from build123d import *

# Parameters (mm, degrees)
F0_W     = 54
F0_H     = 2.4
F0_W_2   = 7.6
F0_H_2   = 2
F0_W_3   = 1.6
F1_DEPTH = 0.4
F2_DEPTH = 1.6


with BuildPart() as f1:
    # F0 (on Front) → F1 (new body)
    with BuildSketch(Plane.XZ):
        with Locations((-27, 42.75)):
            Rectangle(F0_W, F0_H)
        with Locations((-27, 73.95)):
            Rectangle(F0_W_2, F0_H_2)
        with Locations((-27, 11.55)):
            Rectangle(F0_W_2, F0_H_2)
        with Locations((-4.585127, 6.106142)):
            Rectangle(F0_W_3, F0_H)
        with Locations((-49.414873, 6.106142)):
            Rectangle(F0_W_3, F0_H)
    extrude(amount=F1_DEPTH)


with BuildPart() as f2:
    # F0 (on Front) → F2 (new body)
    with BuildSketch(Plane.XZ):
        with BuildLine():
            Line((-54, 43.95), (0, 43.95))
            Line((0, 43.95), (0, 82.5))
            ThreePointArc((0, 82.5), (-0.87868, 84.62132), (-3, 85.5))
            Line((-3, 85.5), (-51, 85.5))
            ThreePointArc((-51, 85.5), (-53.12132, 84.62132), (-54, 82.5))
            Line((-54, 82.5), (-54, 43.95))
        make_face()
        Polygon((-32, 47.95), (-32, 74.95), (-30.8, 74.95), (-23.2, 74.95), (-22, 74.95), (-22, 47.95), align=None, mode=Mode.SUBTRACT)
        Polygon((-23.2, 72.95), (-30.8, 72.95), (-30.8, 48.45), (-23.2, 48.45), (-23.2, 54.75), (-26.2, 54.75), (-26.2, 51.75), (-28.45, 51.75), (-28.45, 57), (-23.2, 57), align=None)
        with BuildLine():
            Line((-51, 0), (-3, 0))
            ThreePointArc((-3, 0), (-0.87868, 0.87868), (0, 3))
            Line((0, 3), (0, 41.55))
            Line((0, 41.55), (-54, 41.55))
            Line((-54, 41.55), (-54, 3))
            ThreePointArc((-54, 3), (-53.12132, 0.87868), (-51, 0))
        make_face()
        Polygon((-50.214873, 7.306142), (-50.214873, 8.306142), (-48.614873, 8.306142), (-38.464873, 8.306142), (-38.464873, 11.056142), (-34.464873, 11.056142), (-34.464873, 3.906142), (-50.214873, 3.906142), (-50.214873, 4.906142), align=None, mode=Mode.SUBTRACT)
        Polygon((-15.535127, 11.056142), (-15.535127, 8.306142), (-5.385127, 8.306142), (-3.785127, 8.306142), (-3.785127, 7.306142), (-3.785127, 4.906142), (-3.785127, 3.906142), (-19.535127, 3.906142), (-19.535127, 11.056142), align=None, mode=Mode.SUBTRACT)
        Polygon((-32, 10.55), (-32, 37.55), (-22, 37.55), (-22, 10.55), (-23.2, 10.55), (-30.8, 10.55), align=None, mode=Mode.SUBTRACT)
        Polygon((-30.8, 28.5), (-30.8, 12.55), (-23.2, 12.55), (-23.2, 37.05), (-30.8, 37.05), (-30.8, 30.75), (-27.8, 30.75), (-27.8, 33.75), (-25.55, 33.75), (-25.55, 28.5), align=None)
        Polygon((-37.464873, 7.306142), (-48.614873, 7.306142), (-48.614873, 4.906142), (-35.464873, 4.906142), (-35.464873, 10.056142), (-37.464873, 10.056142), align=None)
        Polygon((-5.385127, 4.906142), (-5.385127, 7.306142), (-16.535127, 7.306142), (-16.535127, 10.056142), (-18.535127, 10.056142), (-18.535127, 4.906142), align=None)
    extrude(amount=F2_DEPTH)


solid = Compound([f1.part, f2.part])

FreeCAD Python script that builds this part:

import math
import FreeCAD as App
import Part
import Sketcher
from FreeCAD import Vector

doc = App.newDocument("Part")
body = doc.addObject("PartDesign::Body", "Body")
body.AllowCompound = True

# Sketch on XZ plane
sketch1 = body.newObject("Sketcher::SketchObject", "Sketch")
sketch1.AttachmentSupport = (doc.getObject("XZ_Plane"), [""])
sketch1.MapMode = "FlatFace"
sketch1.addGeometry([
    Part.LineSegment(Vector(-54, 43.95, 0), Vector(-54, 41.55, 0)),  # 0
    Part.LineSegment(Vector(-54, 41.55, 0), Vector(0, 41.55, 0)),  # 1
    Part.LineSegment(Vector(0, 41.55, 0), Vector(0, 43.95, 0)),  # 2
    Part.LineSegment(Vector(0, 43.95, 0), Vector(-54, 43.95, 0)),  # 3
    Part.LineSegment(Vector(-30.8, 74.95, 0), Vector(-30.8, 72.95, 0)),  # 4
    Part.LineSegment(Vector(-30.8, 72.95, 0), Vector(-23.2, 72.95, 0)),  # 5
    Part.LineSegment(Vector(-23.2, 72.95, 0), Vector(-23.2, 74.95, 0)),  # 6
    Part.LineSegment(Vector(-23.2, 74.95, 0), Vector(-30.8, 74.95, 0)),  # 7
    Part.LineSegment(Vector(-30.8, 12.55, 0), Vector(-30.8, 10.55, 0)),  # 8
    Part.LineSegment(Vector(-30.8, 10.55, 0), Vector(-23.2, 10.55, 0)),  # 9
    Part.LineSegment(Vector(-23.2, 10.55, 0), Vector(-23.2, 12.55, 0)),  # 10
    Part.LineSegment(Vector(-23.2, 12.55, 0), Vector(-30.8, 12.55, 0)),  # 11
    Part.LineSegment(Vector(-5.385127, 7.306142, 0), Vector(-5.385127, 4.906142, 0)),  # 12
    Part.LineSegment(Vector(-5.385127, 4.906142, 0), Vector(-3.785127, 4.906142, 0)),  # 13
    Part.LineSegment(Vector(-3.785127, 4.906142, 0), Vector(-3.785127, 7.306142, 0)),  # 14
    Part.LineSegment(Vector(-3.785127, 7.306142, 0), Vector(-5.385127, 7.306142, 0)),  # 15
    Part.LineSegment(Vector(-50.214873, 7.306142, 0), Vector(-50.214873, 4.906142, 0)),  # 16
    Part.LineSegment(Vector(-50.214873, 4.906142, 0), Vector(-48.614873, 4.906142, 0)),  # 17
    Part.LineSegment(Vector(-48.614873, 4.906142, 0), Vector(-48.614873, 7.306142, 0)),  # 18
    Part.LineSegment(Vector(-48.614873, 7.306142, 0), Vector(-50.214873, 7.306142, 0)),  # 19
], False)
sketch1.addConstraint([
    Sketcher.Constraint("Coincident", 0, 2, 1, 1),
    Sketcher.Constraint("Coincident", 1, 2, 2, 1),
    Sketcher.Constraint("Coincident", 2, 2, 3, 1),
    Sketcher.Constraint("Coincident", 3, 2, 0, 1),
    Sketcher.Constraint("Coincident", 4, 2, 5, 1),
    Sketcher.Constraint("Coincident", 5, 2, 6, 1),
    Sketcher.Constraint("Coincident", 6, 2, 7, 1),
    Sketcher.Constraint("Coincident", 7, 2, 4, 1),
    Sketcher.Constraint("Coincident", 8, 2, 9, 1),
    Sketcher.Constraint("Coincident", 9, 2, 10, 1),
    Sketcher.Constraint("Coincident", 10, 2, 11, 1),
    Sketcher.Constraint("Coincident", 11, 2, 8, 1),
    Sketcher.Constraint("Coincident", 12, 2, 13, 1),
    Sketcher.Constraint("Coincident", 13, 2, 14, 1),
    Sketcher.Constraint("Coincident", 14, 2, 15, 1),
    Sketcher.Constraint("Coincident", 15, 2, 12, 1),
    Sketcher.Constraint("Coincident", 16, 2, 17, 1),
    Sketcher.Constraint("Coincident", 17, 2, 18, 1),
    Sketcher.Constraint("Coincident", 18, 2, 19, 1),
    Sketcher.Constraint("Coincident", 19, 2, 16, 1),
    Sketcher.Constraint("Vertical", 0),
    Sketcher.Constraint("Horizontal", 1),
    Sketcher.Constraint("Vertical", 2),
    Sketcher.Constraint("Horizontal", 3),
    Sketcher.Constraint("Vertical", 4),
    Sketcher.Constraint("Horizontal", 5),
    Sketcher.Constraint("Vertical", 6),
    Sketcher.Constraint("Horizontal", 7),
    Sketcher.Constraint("Vertical", 8),
    Sketcher.Constraint("Horizontal", 9),
    Sketcher.Constraint("Vertical", 10),
    Sketcher.Constraint("Horizontal", 11),
    Sketcher.Constraint("Vertical", 12),
    Sketcher.Constraint("Horizontal", 13),
    Sketcher.Constraint("Vertical", 14),
    Sketcher.Constraint("Horizontal", 15),
    Sketcher.Constraint("Vertical", 16),
    Sketcher.Constraint("Horizontal", 17),
    Sketcher.Constraint("Vertical", 18),
    Sketcher.Constraint("Horizontal", 19),
    Sketcher.Constraint("PointOnObject", 1, 2, -2),
    Sketcher.Constraint("Horizontal", 13, 2, 16, 2),
    Sketcher.Constraint("Horizontal", 15, 2, 18, 2),
    Sketcher.Constraint("Vertical", 7, 2, 8, 2),
    Sketcher.Constraint("Vertical", 6, 2, 9, 2),
    Sketcher.Constraint("Equal", 15, 17),
    Sketcher.Constraint("Equal", 6, 8),
    Sketcher.Constraint("Equal", 2, 12),
    Sketcher.Constraint("DistanceX", 1, 1, 1, 2, 54.0),
    Sketcher.Constraint("DistanceY", 4, 2, 4, 1, 2.0),
    Sketcher.Constraint("DistanceX", 5, 1, 5, 2, 7.6),
    Sketcher.Constraint("DistanceX", 13, 1, 13, 2, 1.6),
    Sketcher.Constraint("DistanceY", 0, 2, 0, 1, 2.4),
    Sketcher.Constraint("DistanceY", 3, 2, 4, 2, 29.0),
    Sketcher.Constraint("DistanceY", 8, 2, 0, 2, 31.0),
    Sketcher.Constraint("DistanceX", 4, 2, -1, 1, 30.8),
    Sketcher.Constraint("DistanceY", -1, 1, 0, 2, 41.55),
    Sketcher.Constraint("DistanceY", 12, 2, 9, 2, 5.643858),
    Sketcher.Constraint("DistanceX", 12, 2, -1, 1, 5.385127),
    Sketcher.Constraint("DistanceX", 16, 2, -1, 1, 50.214873),
])
pad1 = body.newObject("PartDesign::Pad", "Pad")
pad1.Profile = sketch1
pad1.Length = 0.4
body2 = doc.addObject("PartDesign::Body", "Body001")
body2.AllowCompound = True

# Sketch on XZ plane
sketch2 = body2.newObject("Sketcher::SketchObject", "Sketch001")
sketch2.AttachmentSupport = (doc.getObject("XZ_Plane001"), [""])
sketch2.MapMode = "FlatFace"
sketch2.addGeometry([
    Part.LineSegment(Vector(-54, 43.95, 0), Vector(0, 43.95, 0)),  # 0
    Part.LineSegment(Vector(0, 43.95, 0), Vector(0, 82.5, 0)),  # 1
    Part.ArcOfCircle(Part.Circle(Vector(-3.000001, 82.499999, 0), Vector(0, 0, 1), 3.000001), math.radians(0.000022), math.radians(89.999978)),  # 2
    Part.LineSegment(Vector(-3, 85.5, 0), Vector(-51, 85.5, 0)),  # 3
    Part.ArcOfCircle(Part.Circle(Vector(-50.999999, 82.499999, 0), Vector(0, 0, 1), 3.000001), math.radians(90.000022), math.radians(179.999978)),  # 4
    Part.LineSegment(Vector(-54, 82.5, 0), Vector(-54, 43.95, 0)),  # 5
    Part.LineSegment(Vector(-22, 47.95, 0), Vector(-32, 47.95, 0)),  # 6
    Part.LineSegment(Vector(-32, 47.95, 0), Vector(-32, 74.95, 0)),  # 7
    Part.LineSegment(Vector(-32, 74.95, 0), Vector(-22, 74.95, 0)),  # 8
    Part.LineSegment(Vector(-22, 74.95, 0), Vector(-22, 47.95, 0)),  # 9
    Part.LineSegment(Vector(-23.2, 72.95, 0), Vector(-30.8, 72.95, 0)),  # 10
    Part.LineSegment(Vector(-30.8, 72.95, 0), Vector(-30.8, 48.45, 0)),  # 11
    Part.LineSegment(Vector(-30.8, 48.45, 0), Vector(-23.2, 48.45, 0)),  # 12
    Part.LineSegment(Vector(-23.2, 48.45, 0), Vector(-23.2, 54.75, 0)),  # 13
    Part.LineSegment(Vector(-23.2, 54.75, 0), Vector(-26.2, 54.75, 0)),  # 14
    Part.LineSegment(Vector(-26.2, 54.75, 0), Vector(-26.2, 51.75, 0)),  # 15
    Part.LineSegment(Vector(-26.2, 51.75, 0), Vector(-28.45, 51.75, 0)),  # 16
    Part.LineSegment(Vector(-28.45, 51.75, 0), Vector(-28.45, 57, 0)),  # 17
    Part.LineSegment(Vector(-28.45, 57, 0), Vector(-23.2, 57, 0)),  # 18
    Part.LineSegment(Vector(-23.2, 57, 0), Vector(-23.2, 72.95, 0)),  # 19
    Part.LineSegment(Vector(-51, 0, 0), Vector(-3, 0, 0)),  # 20
    Part.ArcOfCircle(Part.Circle(Vector(-3.000001, 3.000001, 0), Vector(0, 0, 1), 3.000001), math.radians(-89.999978), math.radians(-0.000022)),  # 21
    Part.LineSegment(Vector(0, 3, 0), Vector(0, 41.55, 0)),  # 22
    Part.LineSegment(Vector(0, 41.55, 0), Vector(-54, 41.55, 0)),  # 23
    Part.LineSegment(Vector(-54, 41.55, 0), Vector(-54, 3, 0)),  # 24
    Part.ArcOfCircle(Part.Circle(Vector(-50.999999, 3.000001, 0), Vector(0, 0, 1), 3.000001), math.radians(-179.999978), math.radians(-90.000022)),  # 25
    Part.LineSegment(Vector(-50.214873, 3.906142, 0), Vector(-50.214873, 8.306142, 0)),  # 26
    Part.LineSegment(Vector(-50.214873, 8.306142, 0), Vector(-38.464873, 8.306142, 0)),  # 27
    Part.LineSegment(Vector(-38.464873, 8.306142, 0), Vector(-38.464873, 11.056142, 0)),  # 28
    Part.LineSegment(Vector(-38.464873, 11.056142, 0), Vector(-34.464873, 11.056142, 0)),  # 29
    Part.LineSegment(Vector(-34.464873, 11.056142, 0), Vector(-34.464873, 3.906142, 0)),  # 30
    Part.LineSegment(Vector(-34.464873, 3.906142, 0), Vector(-50.214873, 3.906142, 0)),  # 31
    Part.LineSegment(Vector(-19.535127, 11.056142, 0), Vector(-15.535127, 11.056142, 0)),  # 32
    Part.LineSegment(Vector(-15.535127, 11.056142, 0), Vector(-15.535127, 8.306142, 0)),  # 33
    Part.LineSegment(Vector(-15.535127, 8.306142, 0), Vector(-3.785127, 8.306142, 0)),  # 34
    Part.LineSegment(Vector(-3.785127, 8.306142, 0), Vector(-3.785127, 3.906142, 0)),  # 35
    Part.LineSegment(Vector(-3.785127, 3.906142, 0), Vector(-19.535127, 3.906142, 0)),  # 36
    Part.LineSegment(Vector(-19.535127, 3.906142, 0), Vector(-19.535127, 11.056142, 0)),  # 37
    Part.LineSegment(Vector(-22, 10.55, 0), Vector(-32, 10.55, 0)),  # 38
    Part.LineSegment(Vector(-32, 10.55, 0), Vector(-32, 37.55, 0)),  # 39
    Part.LineSegment(Vector(-32, 37.55, 0), Vector(-22, 37.55, 0)),  # 40
    Part.LineSegment(Vector(-22, 37.55, 0), Vector(-22, 10.55, 0)),  # 41
    Part.LineSegment(Vector(-30.8, 28.5, 0), Vector(-30.8, 12.55, 0)),  # 42
    Part.LineSegment(Vector(-30.8, 12.55, 0), Vector(-23.2, 12.55, 0)),  # 43
    Part.LineSegment(Vector(-23.2, 12.55, 0), Vector(-23.2, 37.05, 0)),  # 44
    Part.LineSegment(Vector(-23.2, 37.05, 0), Vector(-30.8, 37.05, 0)),  # 45
    Part.LineSegment(Vector(-30.8, 37.05, 0), Vector(-30.8, 30.75, 0)),  # 46
    Part.LineSegment(Vector(-30.8, 30.75, 0), Vector(-27.8, 30.75, 0)),  # 47
    Part.LineSegment(Vector(-27.8, 30.75, 0), Vector(-27.8, 33.75, 0)),  # 48
    Part.LineSegment(Vector(-27.8, 33.75, 0), Vector(-25.55, 33.75, 0)),  # 49
    Part.LineSegment(Vector(-25.55, 33.75, 0), Vector(-25.55, 28.5, 0)),  # 50
    Part.LineSegment(Vector(-25.55, 28.5, 0), Vector(-30.8, 28.5, 0)),  # 51
    Part.LineSegment(Vector(-37.464873, 7.306142, 0), Vector(-48.614873, 7.306142, 0)),  # 52
    Part.LineSegment(Vector(-48.614873, 7.306142, 0), Vector(-48.614873, 4.906142, 0)),  # 53
    Part.LineSegment(Vector(-48.614873, 4.906142, 0), Vector(-35.464873, 4.906142, 0)),  # 54
    Part.LineSegment(Vector(-35.464873, 4.906142, 0), Vector(-35.464873, 10.056142, 0)),  # 55
    Part.LineSegment(Vector(-35.464873, 10.056142, 0), Vector(-37.464873, 10.056142, 0)),  # 56
    Part.LineSegment(Vector(-37.464873, 10.056142, 0), Vector(-37.464873, 7.306142, 0)),  # 57
    Part.LineSegment(Vector(-5.385127, 4.906142, 0), Vector(-5.385127, 7.306142, 0)),  # 58
    Part.LineSegment(Vector(-5.385127, 7.306142, 0), Vector(-16.535127, 7.306142, 0)),  # 59
    Part.LineSegment(Vector(-16.535127, 7.306142, 0), Vector(-16.535127, 10.056142, 0)),  # 60
    Part.LineSegment(Vector(-16.535127, 10.056142, 0), Vector(-18.535127, 10.056142, 0)),  # 61
    Part.LineSegment(Vector(-18.535127, 10.056142, 0), Vector(-18.535127, 4.906142, 0)),  # 62
    Part.LineSegment(Vector(-18.535127, 4.906142, 0), Vector(-5.385127, 4.906142, 0)),  # 63
], False)
sketch2.addConstraint([
    Sketcher.Constraint("Coincident", 0, 2, 1, 1),
    Sketcher.Constraint("Tangent", 1, 2, 2, 1),
    Sketcher.Constraint("Tangent", 2, 2, 3, 1),
    Sketcher.Constraint("Tangent", 3, 2, 4, 1),
    Sketcher.Constraint("Tangent", 4, 2, 5, 1),
    Sketcher.Constraint("Coincident", 5, 2, 0, 1),
    Sketcher.Constraint("Coincident", 6, 2, 7, 1),
    Sketcher.Constraint("Coincident", 7, 2, 8, 1),
    Sketcher.Constraint("Coincident", 8, 2, 9, 1),
    Sketcher.Constraint("Coincident", 9, 2, 6, 1),
    Sketcher.Constraint("Coincident", 10, 2, 11, 1),
    Sketcher.Constraint("Coincident", 11, 2, 12, 1),
    Sketcher.Constraint("Coincident", 12, 2, 13, 1),
    Sketcher.Constraint("Coincident", 13, 2, 14, 1),
    Sketcher.Constraint("Coincident", 14, 2, 15, 1),
    Sketcher.Constraint("Coincident", 15, 2, 16, 1),
    Sketcher.Constraint("Coincident", 16, 2, 17, 1),
    Sketcher.Constraint("Coincident", 17, 2, 18, 1),
    Sketcher.Constraint("Coincident", 18, 2, 19, 1),
    Sketcher.Constraint("Coincident", 19, 2, 10, 1),
    Sketcher.Constraint("Tangent", 20, 2, 21, 1),
    Sketcher.Constraint("Tangent", 21, 2, 22, 1),
    Sketcher.Constraint("Coincident", 22, 2, 23, 1),
    Sketcher.Constraint("Coincident", 23, 2, 24, 1),
    Sketcher.Constraint("Tangent", 24, 2, 25, 1),
    Sketcher.Constraint("Tangent", 25, 2, 20, 1),
    Sketcher.Constraint("Coincident", 26, 2, 27, 1),
    Sketcher.Constraint("Coincident", 27, 2, 28, 1),
    Sketcher.Constraint("Coincident", 28, 2, 29, 1),
    Sketcher.Constraint("Coincident", 29, 2, 30, 1),
    Sketcher.Constraint("Coincident", 30, 2, 31, 1),
    Sketcher.Constraint("Coincident", 31, 2, 26, 1),
    Sketcher.Constraint("Coincident", 32, 2, 33, 1),
    Sketcher.Constraint("Coincident", 33, 2, 34, 1),
    Sketcher.Constraint("Coincident", 34, 2, 35, 1),
    Sketcher.Constraint("Coincident", 35, 2, 36, 1),
    Sketcher.Constraint("Coincident", 36, 2, 37, 1),
    Sketcher.Constraint("Coincident", 37, 2, 32, 1),
    Sketcher.Constraint("Coincident", 38, 2, 39, 1),
    Sketcher.Constraint("Coincident", 39, 2, 40, 1),
    Sketcher.Constraint("Coincident", 40, 2, 41, 1),
    Sketcher.Constraint("Coincident", 41, 2, 38, 1),
    Sketcher.Constraint("Coincident", 42, 2, 43, 1),
    Sketcher.Constraint("Coincident", 43, 2, 44, 1),
    Sketcher.Constraint("Coincident", 44, 2, 45, 1),
    Sketcher.Constraint("Coincident", 45, 2, 46, 1),
    Sketcher.Constraint("Coincident", 46, 2, 47, 1),
    Sketcher.Constraint("Coincident", 47, 2, 48, 1),
    Sketcher.Constraint("Coincident", 48, 2, 49, 1),
    Sketcher.Constraint("Coincident", 49, 2, 50, 1),
    Sketcher.Constraint("Coincident", 50, 2, 51, 1),
    Sketcher.Constraint("Coincident", 51, 2, 42, 1),
    Sketcher.Constraint("Coincident", 52, 2, 53, 1),
    Sketcher.Constraint("Coincident", 53, 2, 54, 1),
    Sketcher.Constraint("Coincident", 54, 2, 55, 1),
    Sketcher.Constraint("Coincident", 55, 2, 56, 1),
    Sketcher.Constraint("Coincident", 56, 2, 57, 1),
    Sketcher.Constraint("Coincident", 57, 2, 52, 1),
    Sketcher.Constraint("Coincident", 58, 2, 59, 1),
    Sketcher.Constraint("Coincident", 59, 2, 60, 1),
    Sketcher.Constraint("Coincident", 60, 2, 61, 1),
    Sketcher.Constraint("Coincident", 61, 2, 62, 1),
    Sketcher.Constraint("Coincident", 62, 2, 63, 1),
    Sketcher.Constraint("Coincident", 63, 2, 58, 1),
    Sketcher.Constraint("Horizontal", 0),
    Sketcher.Constraint("Vertical", 1),
    Sketcher.Constraint("Horizontal", 3),
    Sketcher.Constraint("Vertical", 5),
    Sketcher.Constraint("Horizontal", 6),
    Sketcher.Constraint("Vertical", 7),
    Sketcher.Constraint("Horizontal", 8),
    Sketcher.Constraint("Vertical", 9),
    Sketcher.Constraint("Horizontal", 10),
    Sketcher.Constraint("Vertical", 11),
    Sketcher.Constraint("Horizontal", 12),
    Sketcher.Constraint("Vertical", 13),
    Sketcher.Constraint("Horizontal", 14),
    Sketcher.Constraint("Vertical", 15),
    Sketcher.Constraint("Horizontal", 16),
    Sketcher.Constraint("Vertical", 17),
    Sketcher.Constraint("Horizontal", 18),
    Sketcher.Constraint("Vertical", 19),
    Sketcher.Constraint("Horizontal", 20),
    Sketcher.Constraint("Vertical", 22),
    Sketcher.Constraint("Horizontal", 23),
    Sketcher.Constraint("Vertical", 24),
    Sketcher.Constraint("Vertical", 26),
    Sketcher.Constraint("Horizontal", 27),
    Sketcher.Constraint("Vertical", 28),
    Sketcher.Constraint("Horizontal", 29),
    Sketcher.Constraint("Vertical", 30),
    Sketcher.Constraint("Horizontal", 31),
    Sketcher.Constraint("Horizontal", 32),
    Sketcher.Constraint("Vertical", 33),
    Sketcher.Constraint("Horizontal", 34),
    Sketcher.Constraint("Vertical", 35),
    Sketcher.Constraint("Horizontal", 36),
    Sketcher.Constraint("Vertical", 37),
    Sketcher.Constraint("Horizontal", 38),
    Sketcher.Constraint("Vertical", 39),
    Sketcher.Constraint("Horizontal", 40),
    Sketcher.Constraint("Vertical", 41),
    Sketcher.Constraint("Vertical", 42),
    Sketcher.Constraint("Horizontal", 43),
    Sketcher.Constraint("Vertical", 44),
    Sketcher.Constraint("Horizontal", 45),
    Sketcher.Constraint("Vertical", 46),
    Sketcher.Constraint("Horizontal", 47),
    Sketcher.Constraint("Vertical", 48),
    Sketcher.Constraint("Horizontal", 49),
    Sketcher.Constraint("Vertical", 50),
    Sketcher.Constraint("Horizontal", 51),
    Sketcher.Constraint("Horizontal", 52),
    Sketcher.Constraint("Vertical", 53),
    Sketcher.Constraint("Horizontal", 54),
    Sketcher.Constraint("Vertical", 55),
    Sketcher.Constraint("Horizontal", 56),
    Sketcher.Constraint("Vertical", 57),
    Sketcher.Constraint("Vertical", 58),
    Sketcher.Constraint("Horizontal", 59),
    Sketcher.Constraint("Vertical", 60),
    Sketcher.Constraint("Horizontal", 61),
    Sketcher.Constraint("Vertical", 62),
    Sketcher.Constraint("Horizontal", 63),
    Sketcher.Constraint("Equal", 2, 4),
    Sketcher.Constraint("Equal", 4, 21),
    Sketcher.Constraint("Equal", 21, 25),
    Sketcher.Constraint("PointOnObject", 0, 2, -2),
    Sketcher.Constraint("PointOnObject", 20, 2, -1),
    Sketcher.Constraint("PointOnObject", 21, 2, -2),
    Sketcher.Constraint("Horizontal", 29, 2, 32, 2),
    Sketcher.Constraint("Horizontal", 27, 2, 33, 2),
    Sketcher.Constraint("Horizontal", 31, 2, 35, 2),
    Sketcher.Constraint("Horizontal", 57, 2, 58, 2),
    Sketcher.Constraint("Horizontal", 56, 2, 60, 2),
    Sketcher.Constraint("Horizontal", 54, 2, 62, 2),
    Sketcher.Constraint("Vertical", 4, 3, 25, 3),
    Sketcher.Constraint("Vertical", 13, 2, 18, 2),
    Sketcher.Constraint("Vertical", 7, 2, 38, 2),
    Sketcher.Constraint("Vertical", 9, 2, 40, 2),
    Sketcher.Constraint("Vertical", 11, 2, 42, 2),
    Sketcher.Constraint("Vertical", 19, 2, 43, 2),
    Sketcher.Constraint("Vertical", 42, 2, 45, 2),
    Sketcher.Constraint("Equal", 29, 32),
    Sketcher.Constraint("Equal", 27, 34),
    Sketcher.Constraint("Equal", 14, 47),
    Sketcher.Constraint("Equal", 16, 49),
    Sketcher.Constraint("Equal", 52, 59),
    Sketcher.Constraint("Equal", 56, 61),
    Sketcher.Constraint("Equal", 47, 15),
    Sketcher.Constraint("Equal", 51, 17),
    Sketcher.Constraint("Equal", 5, 22),
    Sketcher.Constraint("Equal", 9, 39),
    Sketcher.Constraint("Equal", 19, 42),
    Sketcher.Constraint("Equal", 11, 44),
    Sketcher.Constraint("Equal", 13, 46),
    Sketcher.Constraint("Equal", 15, 48),
    Sketcher.Constraint("Equal", 33, 57),
    Sketcher.Constraint("Radius", 2, 3.000001),
    Sketcher.Constraint("DistanceX", 0, 1, 0, 2, 54.0),
    Sketcher.Constraint("DistanceX", 6, 2, 6, 1, 10.0),
    Sketcher.Constraint("DistanceX", 14, 2, 14, 1, 3.0),
    Sketcher.Constraint("DistanceX", 29, 1, 29, 2, 4.0),
    Sketcher.Constraint("DistanceX", 56, 2, 56, 1, 2.0),
    Sketcher.Constraint("DistanceY", 7, 1, 7, 2, 27.0),
    Sketcher.Constraint("DistanceX", 10, 2, 10, 1, 7.6),
    Sketcher.Constraint("DistanceY", 11, 2, 11, 1, 24.5),
    Sketcher.Constraint("DistanceY", 13, 1, 13, 2, 6.3),
    Sketcher.Constraint("DistanceY", 26, 1, 26, 2, 4.4),
    Sketcher.Constraint("DistanceY", 53, 2, 53, 1, 2.4),
    Sketcher.Constraint("DistanceX", 6, 2, -1, 1, 32.0),
    Sketcher.Constraint("DistanceY", -1, 1, 17, 2, 57.0),
    Sketcher.Constraint("DistanceX", 16, 2, 16, 1, 2.25),
    Sketcher.Constraint("DistanceX", 27, 1, 27, 2, 11.75),
    Sketcher.Constraint("DistanceX", 52, 2, 52, 1, 11.15),
    Sketcher.Constraint("DistanceY", 1, 1, 1, 2, 38.55),
    Sketcher.Constraint("DistanceY", 28, 1, 28, 2, 2.75),
    Sketcher.Constraint("DistanceY", -1, 1, 2, 3, 82.499999),
    Sketcher.Constraint("DistanceX", 10, 2, -1, 1, 30.8),
    Sketcher.Constraint("DistanceY", -1, 1, 50, 2, 28.5),
    Sketcher.Constraint("DistanceY", -1, 1, 6, 2, 47.95),
    Sketcher.Constraint("DistanceY", -1, 1, 38, 2, 10.55),
    Sketcher.Constraint("DistanceY", -1, 1, 30, 2, 3.906142),
    Sketcher.Constraint("DistanceX", 26, 2, -1, 1, 50.214873),
    Sketcher.Constraint("DistanceX", 32, 2, -1, 1, 15.535127),
    Sketcher.Constraint("DistanceX", 52, 2, -1, 1, 48.614873),
    Sketcher.Constraint("DistanceY", -1, 1, 52, 2, 7.306142),
    Sketcher.Constraint("DistanceX", 58, 2, -1, 1, 5.385127),
])
pad2 = body2.newObject("PartDesign::Pad", "Pad001")
pad2.Profile = sketch2
pad2.Length = 1.6

doc.recompute()
